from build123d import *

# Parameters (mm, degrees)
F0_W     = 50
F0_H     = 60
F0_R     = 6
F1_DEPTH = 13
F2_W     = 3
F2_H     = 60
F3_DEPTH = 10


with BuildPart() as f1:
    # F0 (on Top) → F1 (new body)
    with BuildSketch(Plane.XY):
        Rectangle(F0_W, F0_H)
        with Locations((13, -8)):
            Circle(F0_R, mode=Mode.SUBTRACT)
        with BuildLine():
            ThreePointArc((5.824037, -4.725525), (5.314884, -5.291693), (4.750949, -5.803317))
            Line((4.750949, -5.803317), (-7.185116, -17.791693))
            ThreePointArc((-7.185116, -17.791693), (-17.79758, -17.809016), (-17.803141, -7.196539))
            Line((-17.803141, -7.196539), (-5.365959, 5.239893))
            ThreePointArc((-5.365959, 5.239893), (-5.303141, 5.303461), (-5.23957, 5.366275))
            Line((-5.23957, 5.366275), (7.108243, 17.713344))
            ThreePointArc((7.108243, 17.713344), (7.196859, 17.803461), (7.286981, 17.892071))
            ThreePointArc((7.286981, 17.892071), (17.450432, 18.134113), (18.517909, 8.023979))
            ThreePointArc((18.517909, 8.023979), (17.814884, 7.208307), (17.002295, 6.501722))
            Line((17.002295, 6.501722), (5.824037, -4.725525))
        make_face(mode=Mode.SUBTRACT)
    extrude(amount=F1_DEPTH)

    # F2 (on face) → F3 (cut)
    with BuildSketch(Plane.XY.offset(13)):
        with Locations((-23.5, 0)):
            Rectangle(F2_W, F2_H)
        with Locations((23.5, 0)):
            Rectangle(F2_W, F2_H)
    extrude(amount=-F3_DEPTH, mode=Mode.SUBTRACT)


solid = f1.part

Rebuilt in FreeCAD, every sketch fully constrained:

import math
import FreeCAD as App
import Part
import Sketcher
Q = App.Units.Quantity


def add_polygon(sketch, points):
    """Adds a closed chain of lines whose ends are joined by coincident constraints."""
    first, n = sketch.GeometryCount, len(points)
    for a, b in zip(points, points[1:] + points[:1]):
        sketch.addGeometry(Part.LineSegment(App.Vector(*a, 0), App.Vector(*b, 0)), False)
    for i in range(n):
        sketch.addConstraint(Sketcher.Constraint("Coincident", first + i, 2, first + (i + 1) % n, 1))

doc = App.newDocument("Part")
body = doc.addObject("PartDesign::Body", "Body")

# Sketch on XY plane
sketch1 = body.newObject("Sketcher::SketchObject", "Sketch")
sketch1.AttachmentSupport = (doc.getObject("XY_Plane"), [""])
sketch1.MapMode = "FlatFace"
add_polygon(sketch1, [(-25, 30), (-25, -30), (25, -30), (25, 30)])  # lines 0-3
sketch1.addGeometry(Part.Circle(App.Vector(13, -8, 0), App.Vector(0, 0, 1), 6), False)  # 4
sketch1.addGeometry(Part.LineSegment(App.Vector(17.002295, 6.501722, 0), App.Vector(5.824037, -4.725525, 0)), False)  # 5
sketch1.addGeometry(Part.ArcOfCircle(Part.Circle(App.Vector(0.000068, -0.000073, 0), App.Vector(0, 0, 1), 7.499901), math.radians(-50.694202), math.radians(-39.055185)), False)  # 6
sketch1.addGeometry(Part.LineSegment(App.Vector(4.750949, -5.803317, 0), App.Vector(-7.185116, -17.791693, 0)), False)  # 7
sketch1.addGeometry(Part.ArcOfCircle(Part.Circle(App.Vector(-12.5, -12.5, 0), App.Vector(0, 0, 1), 7.5), math.radians(134.998271), math.radians(315.125275)), False)  # 8
sketch1.addGeometry(Part.LineSegment(App.Vector(-17.803141, -7.196539, 0), App.Vector(-5.365959, 5.239893, 0)), False)  # 9
sketch1.addGeometry(Part.ArcOfCircle(Part.Circle(App.Vector(-0.0034, 0.003426, 0), App.Vector(0, 0, 1), 7.495173), math.radians(134.315236), math.radians(135.681591)), False)  # 10
sketch1.addGeometry(Part.LineSegment(App.Vector(-5.23957, 5.366275, 0), App.Vector(7.108243, 17.713344, 0)), False)  # 11
sketch1.addGeometry(Part.ArcOfCircle(Part.Circle(App.Vector(12.498318, 12.501675, 0), App.Vector(0, 0, 1), 7.497626), math.radians(134.032391), math.radians(135.964083)), False)  # 12
sketch1.addGeometry(Part.ArcOfCircle(Part.Circle(App.Vector(12.5, 12.500001, 0), App.Vector(0, 0, 1), 7.5), math.radians(-36.641266), math.radians(134.03274)), False)  # 13
sketch1.addGeometry(Part.ArcOfCircle(Part.Circle(App.Vector(12.500048, 12.49995, 0), App.Vector(0, 0, 1), 7.499931), math.radians(-53.108248), math.radians(-36.641172)), False)  # 14
sketch1.addConstraint([
    Sketcher.Constraint("Coincident", 5, 2, 6, 2),
    Sketcher.Constraint("Coincident", 6, 1, 7, 1),
    Sketcher.Constraint("Coincident", 7, 2, 8, 2),
    Sketcher.Constraint("Coincident", 8, 1, 9, 1),
    Sketcher.Constraint("Coincident", 9, 2, 10, 2),
    Sketcher.Constraint("Coincident", 10, 1, 11, 1),
    Sketcher.Constraint("Coincident", 11, 2, 12, 2),
    Sketcher.Constraint("Coincident", 12, 1, 13, 2),
    Sketcher.Constraint("Coincident", 13, 1, 14, 2),
    Sketcher.Constraint("Coincident", 14, 1, 5, 1),
    Sketcher.Constraint("Vertical", 0),
    Sketcher.Constraint("Horizontal", 1),
    Sketcher.Constraint("Vertical", 2),
    Sketcher.Constraint("Horizontal", 3),
    Sketcher.Constraint("Diameter", 4, Q("12 mm")),
    Sketcher.Constraint("Radius", 8, Q("7.5 mm")),
    Sketcher.Constraint("Radius", 13, Q("7.5 mm")),
    Sketcher.Constraint("DistanceX", 1, 1, 1, 2, Q("50 mm")),
    Sketcher.Constraint("DistanceY", 0, 2, 0, 1, Q("60 mm")),
    Sketcher.Constraint("DistanceX", -1, 1, 4, 3, Q("13 mm")),
    Sketcher.Constraint("DistanceY", 4, 3, -1, 1, Q("8 mm")),
    Sketcher.Constraint("DistanceX", 0, 2, -1, 1, Q("25 mm")),
    Sketcher.Constraint("DistanceY", 0, 2, -1, 1, Q("30 mm")),
    Sketcher.Constraint("DistanceX", 8, 3, 13, 3, Q("25 mm")),
    Sketcher.Constraint("DistanceY", 8, 3, 13, 3, Q("25.000001 mm")),
    Sketcher.Constraint("DistanceX", 8, 3, -1, 1, Q("12.5 mm")),
    Sketcher.Constraint("DistanceY", 8, 3, -1, 1, Q("12.5 mm")),
    Sketcher.Constraint("Radius", 6, Q("7.499901 mm")),
    Sketcher.Constraint("Radius", 14, Q("7.499931 mm")),
    Sketcher.Constraint("Radius", 10, Q("7.495173 mm")),
    Sketcher.Constraint("Radius", 12, Q("7.497626 mm")),
    Sketcher.Constraint("Distance", 9, Q("17.588301 mm")),
    Sketcher.Constraint("DistanceX", 10, 3, -1, 1, Q("0.0034 mm")),
    Sketcher.Constraint("DistanceY", 6, 3, 10, 3, Q("0.003499 mm")),
    Sketcher.Constraint("DistanceY", 5, 2, 10, 1, Q("10.0918 mm")),
    Sketcher.Constraint("Distance", 11, Q("17.461919 mm")),
    Sketcher.Constraint("DistanceX", -1, 1, 14, 3, Q("12.500048 mm")),
    Sketcher.Constraint("DistanceX", -1, 1, 6, 1, Q("4.750949 mm")),
    Sketcher.Constraint("DistanceX", 8, 1, -1, 1, Q("17.803141 mm")),
    Sketcher.Constraint("DistanceX", 9, 2, -1, 1, Q("5.365959 mm")),
    Sketcher.Constraint("DistanceX", 10, 1, -1, 1, Q("5.23957 mm")),
    Sketcher.Constraint("DistanceX", -1, 1, 12, 1, Q("7.286981 mm")),
    Sketcher.Constraint("DistanceX", -1, 1, 13, 1, Q("18.517909 mm")),
    Sketcher.Constraint("DistanceY", -1, 1, 14, 1, Q("6.501722 mm")),
    Sketcher.Constraint("DistanceX", 10, 3, 6, 3, Q("0.003468 mm")),
    Sketcher.Constraint("DistanceX", 10, 3, 12, 3, Q("12.501718 mm")),
    Sketcher.Constraint("DistanceY", 7, 2, 6, 3, Q("17.79162 mm")),
])
pad1 = body.newObject("PartDesign::Pad", "Pad")
pad1.Profile = sketch1
pad1.Length = 13

# Sketch on XY plane
sketch2 = body.newObject("Sketcher::SketchObject", "Sketch001")
sketch2.AttachmentSupport = (doc.getObject("XY_Plane"), [""])
sketch2.MapMode = "FlatFace"
sketch2.AttachmentOffset = App.Placement(App.Vector(0, 0, 13), App.Rotation())
add_polygon(sketch2, [(-25, 30), (-25, -30), (-22, -30), (-22, 30)])  # lines 0-3
add_polygon(sketch2, [(22, 30), (22, -30), (25, -30), (25, 30)])  # lines 4-7
sketch2.addConstraint([
    Sketcher.Constraint("Vertical", 0),
    Sketcher.Constraint("Horizontal", 1),
    Sketcher.Constraint("Vertical", 2),
    Sketcher.Constraint("Horizontal", 3),
    Sketcher.Constraint("Vertical", 4),
    Sketcher.Constraint("Horizontal", 5),
    Sketcher.Constraint("Vertical", 6),
    Sketcher.Constraint("Horizontal", 7),
    Sketcher.Constraint("Symmetric", 2, 2, 4, 2, -1, 1),
    Sketcher.Constraint("Symmetric", 0, 2, 6, 2, -1, 1),
    Sketcher.Constraint("Horizontal", 1, 2, 4, 2),
    Sketcher.Constraint("DistanceX", 1, 1, 1, 2, Q("3 mm")),
    Sketcher.Constraint("DistanceY", 0, 2, 0, 1, Q("60 mm")),
    Sketcher.Constraint("DistanceX", 0, 2, -1, 1, Q("25 mm")),
])
pocket1 = body.newObject("PartDesign::Pocket", "Pocket")
pocket1.Profile = sketch2
pocket1.Length = 10

doc.recompute()
